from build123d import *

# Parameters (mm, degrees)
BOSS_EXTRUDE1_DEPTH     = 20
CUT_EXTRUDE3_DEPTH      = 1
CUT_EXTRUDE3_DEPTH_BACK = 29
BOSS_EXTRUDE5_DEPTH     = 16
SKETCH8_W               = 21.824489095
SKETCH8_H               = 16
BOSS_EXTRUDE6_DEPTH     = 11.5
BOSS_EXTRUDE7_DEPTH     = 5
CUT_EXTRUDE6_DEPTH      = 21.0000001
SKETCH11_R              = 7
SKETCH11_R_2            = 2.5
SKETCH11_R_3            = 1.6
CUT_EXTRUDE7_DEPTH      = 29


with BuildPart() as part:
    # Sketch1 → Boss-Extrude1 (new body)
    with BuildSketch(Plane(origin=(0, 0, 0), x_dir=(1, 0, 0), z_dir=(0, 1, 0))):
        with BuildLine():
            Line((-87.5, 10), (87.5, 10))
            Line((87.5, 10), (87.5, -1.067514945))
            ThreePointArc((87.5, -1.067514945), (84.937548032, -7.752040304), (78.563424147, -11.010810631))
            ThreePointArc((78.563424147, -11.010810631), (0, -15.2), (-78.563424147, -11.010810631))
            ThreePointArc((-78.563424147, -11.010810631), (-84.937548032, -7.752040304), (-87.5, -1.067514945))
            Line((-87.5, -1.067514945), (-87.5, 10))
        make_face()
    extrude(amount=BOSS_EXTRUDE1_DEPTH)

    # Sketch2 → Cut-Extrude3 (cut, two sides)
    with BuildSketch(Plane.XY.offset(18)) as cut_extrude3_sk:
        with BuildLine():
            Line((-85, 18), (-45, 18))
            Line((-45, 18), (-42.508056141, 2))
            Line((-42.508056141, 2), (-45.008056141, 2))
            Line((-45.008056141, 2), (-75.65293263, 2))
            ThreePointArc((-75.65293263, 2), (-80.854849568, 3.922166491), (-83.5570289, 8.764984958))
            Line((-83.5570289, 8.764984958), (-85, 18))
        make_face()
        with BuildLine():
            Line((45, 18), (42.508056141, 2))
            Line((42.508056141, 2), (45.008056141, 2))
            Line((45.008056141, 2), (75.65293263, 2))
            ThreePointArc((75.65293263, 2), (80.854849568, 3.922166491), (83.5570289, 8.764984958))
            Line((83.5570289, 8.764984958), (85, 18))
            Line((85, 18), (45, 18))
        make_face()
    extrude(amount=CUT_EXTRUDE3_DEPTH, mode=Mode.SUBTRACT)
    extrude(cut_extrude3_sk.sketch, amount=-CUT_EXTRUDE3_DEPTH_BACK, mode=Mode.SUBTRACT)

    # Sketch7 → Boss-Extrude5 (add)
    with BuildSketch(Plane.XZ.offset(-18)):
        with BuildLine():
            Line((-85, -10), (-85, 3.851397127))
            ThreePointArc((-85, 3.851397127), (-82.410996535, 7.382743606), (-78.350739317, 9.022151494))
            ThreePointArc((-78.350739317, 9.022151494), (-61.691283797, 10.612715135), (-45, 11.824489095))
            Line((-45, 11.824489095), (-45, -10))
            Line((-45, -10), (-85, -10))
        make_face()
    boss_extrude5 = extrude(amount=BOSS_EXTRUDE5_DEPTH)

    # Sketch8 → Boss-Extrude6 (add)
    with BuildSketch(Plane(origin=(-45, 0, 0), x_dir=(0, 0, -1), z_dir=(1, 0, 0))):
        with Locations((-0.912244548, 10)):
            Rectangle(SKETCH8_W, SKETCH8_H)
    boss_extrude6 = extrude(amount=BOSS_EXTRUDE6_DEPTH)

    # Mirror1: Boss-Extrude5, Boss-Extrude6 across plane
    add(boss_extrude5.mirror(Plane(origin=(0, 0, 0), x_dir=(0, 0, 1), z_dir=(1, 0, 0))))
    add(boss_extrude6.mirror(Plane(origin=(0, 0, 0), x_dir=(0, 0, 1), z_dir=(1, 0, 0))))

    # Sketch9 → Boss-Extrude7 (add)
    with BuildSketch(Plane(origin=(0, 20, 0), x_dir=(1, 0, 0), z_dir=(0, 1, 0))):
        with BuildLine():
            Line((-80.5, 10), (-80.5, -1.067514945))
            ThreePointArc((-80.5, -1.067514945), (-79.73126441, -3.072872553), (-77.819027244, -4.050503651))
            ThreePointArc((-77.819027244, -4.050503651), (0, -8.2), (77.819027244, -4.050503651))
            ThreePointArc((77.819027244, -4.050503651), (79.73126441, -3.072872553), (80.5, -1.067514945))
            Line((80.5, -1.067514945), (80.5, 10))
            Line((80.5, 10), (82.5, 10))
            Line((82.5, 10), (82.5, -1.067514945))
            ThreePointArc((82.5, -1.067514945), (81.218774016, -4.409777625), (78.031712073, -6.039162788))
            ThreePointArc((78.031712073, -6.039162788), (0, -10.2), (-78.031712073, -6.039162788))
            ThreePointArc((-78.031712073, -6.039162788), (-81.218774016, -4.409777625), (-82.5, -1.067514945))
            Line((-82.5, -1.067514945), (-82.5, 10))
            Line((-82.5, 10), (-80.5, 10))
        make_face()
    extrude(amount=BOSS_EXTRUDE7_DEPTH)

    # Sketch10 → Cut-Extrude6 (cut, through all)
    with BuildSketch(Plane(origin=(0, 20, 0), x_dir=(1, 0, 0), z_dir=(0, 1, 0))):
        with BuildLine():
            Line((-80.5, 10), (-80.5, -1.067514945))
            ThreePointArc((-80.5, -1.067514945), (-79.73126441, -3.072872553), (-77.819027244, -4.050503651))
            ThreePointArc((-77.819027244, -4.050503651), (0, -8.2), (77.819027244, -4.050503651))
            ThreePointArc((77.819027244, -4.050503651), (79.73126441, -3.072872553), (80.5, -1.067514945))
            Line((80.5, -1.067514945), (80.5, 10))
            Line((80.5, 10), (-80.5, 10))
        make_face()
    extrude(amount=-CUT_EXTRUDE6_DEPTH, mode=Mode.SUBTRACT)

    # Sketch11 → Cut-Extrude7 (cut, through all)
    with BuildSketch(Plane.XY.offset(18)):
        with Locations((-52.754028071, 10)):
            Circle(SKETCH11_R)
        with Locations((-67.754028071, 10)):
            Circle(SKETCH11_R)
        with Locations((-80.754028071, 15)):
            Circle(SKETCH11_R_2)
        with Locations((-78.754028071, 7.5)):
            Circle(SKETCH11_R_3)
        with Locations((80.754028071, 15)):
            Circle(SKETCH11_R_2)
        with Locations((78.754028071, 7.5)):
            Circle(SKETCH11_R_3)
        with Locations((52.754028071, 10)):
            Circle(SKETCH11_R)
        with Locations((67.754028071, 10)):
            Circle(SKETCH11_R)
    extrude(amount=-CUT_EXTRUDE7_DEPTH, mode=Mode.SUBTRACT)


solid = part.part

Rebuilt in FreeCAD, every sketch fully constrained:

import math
import FreeCAD as App
import Part
import Sketcher
from FreeCAD import Vector
Q = App.Units.Quantity

doc = App.newDocument("Part")
body = doc.addObject("PartDesign::Body", "Body")

# Sketch on XZ plane
sketch1 = body.newObject("Sketcher::SketchObject", "Sketch")
sketch1.AttachmentSupport = (doc.getObject("XZ_Plane"), [""])
sketch1.MapMode = "FlatFace"
sketch1.addGeometry(Part.LineSegment(Vector(88, -10, 0), Vector(-88, -10, 0)), False)
sketch1.addGeometry(Part.LineSegment(Vector(-88, -10, 0), Vector(-88, 1, 0)), False)
sketch1.addGeometry(Part.ArcOfCircle(Part.Circle(Vector(-77, 1, 0), Vector(0, 0, 1), 10), math.radians(96), math.radians(180)), False)
sketch1.addGeometry(Part.ArcOfCircle(Part.Circle(Vector(0, -724, 0), Vector(0, 0, 1), 739), math.radians(83.9), math.radians(96.1)), False)
sketch1.addGeometry(Part.ArcOfCircle(Part.Circle(Vector(77, 1, 0), Vector(0, 0, 1), 10), math.radians(0), math.radians(84)), False)
sketch1.addGeometry(Part.LineSegment(Vector(88, 1, 0), Vector(88, -10, 0)), False)
sketch1.addConstraint(Sketcher.Constraint("Coincident", 0, 2, 1, 1))
sketch1.addConstraint(Sketcher.Constraint("Tangent", 1, 2, 2, 2))
sketch1.addConstraint(Sketcher.Constraint("Tangent", 2, 1, 3, 2))
sketch1.addConstraint(Sketcher.Constraint("Tangent", 3, 1, 4, 2))
sketch1.addConstraint(Sketcher.Constraint("Tangent", 4, 1, 5, 1))
sketch1.addConstraint(Sketcher.Constraint("Coincident", 5, 2, 0, 1))
sketch1.addConstraint(Sketcher.Constraint("Horizontal", 0))
sketch1.addConstraint(Sketcher.Constraint("Vertical", 1))
sketch1.addConstraint(Sketcher.Constraint("Vertical", 5))
sketch1.addConstraint(Sketcher.Constraint("Equal", 2, 4))
sketch1.addConstraint(Sketcher.Constraint("Symmetric", 2, 3, 4, 3, -2))
sketch1.addConstraint(Sketcher.Constraint("Radius", 2, Q("10 mm")))
sketch1.addConstraint(Sketcher.Constraint("DistanceX", 0, 2, 0, 1, Q("175 mm")))
sketch1.addConstraint(Sketcher.Constraint("DistanceY", 0, 2, -1, 1, Q("10 mm")))
sketch1.addConstraint(Sketcher.Constraint("Radius", 3, Q("738.777885 mm")))
sketch1.addConstraint(Sketcher.Constraint("DistanceY", 1, 1, 1, 2, Q("11.067515 mm")))
pad1 = body.newObject("PartDesign::Pad", "Pad")
pad1.Profile = sketch1
pad1.Length = 20
pad1.Reversed = True

# Sketch on XY plane
sketch2 = body.newObject("Sketcher::SketchObject", "Sketch001")
sketch2.AttachmentSupport = (doc.getObject("XY_Plane"), [""])
sketch2.MapMode = "FlatFace"
sketch2.AttachmentOffset = App.Placement(Vector(0, 0, 18), App.Rotation())
sketch2.addGeometry(Part.LineSegment(Vector(-45, 18, 0), Vector(-85, 18, 0)), False)
sketch2.addGeometry(Part.LineSegment(Vector(-85, 18, 0), Vector(-84, 9, 0)), False)
sketch2.addGeometry(Part.ArcOfCircle(Part.Circle(Vector(-76, 10, 0), Vector(0, 0, 1), 8), math.radians(-171), math.radians(-90)), False)
sketch2.addGeometry(Part.LineSegment(Vector(-76, 2, 0), Vector(-43, 2, 0)), False)
sketch2.addGeometry(Part.LineSegment(Vector(-43, 2, 0), Vector(-45, 18, 0)), False)
sketch2.addGeometry(Part.LineSegment(Vector(45, 18, 0), Vector(43, 2, 0)), False)
sketch2.addGeometry(Part.LineSegment(Vector(43, 2, 0), Vector(76, 2, 0)), False)
sketch2.addGeometry(Part.ArcOfCircle(Part.Circle(Vector(76, 10, 0), Vector(0, 0, 1), 8), math.radians(-90), math.radians(-9)), False)
sketch2.addGeometry(Part.LineSegment(Vector(84, 9, 0), Vector(85, 18, 0)), False)
sketch2.addGeometry(Part.LineSegment(Vector(85, 18, 0), Vector(45, 18, 0)), False)
sketch2.addConstraint(Sketcher.Constraint("Coincident", 0, 2, 1, 1))
sketch2.addConstraint(Sketcher.Constraint("Tangent", 1, 2, 2, 1))
sketch2.addConstraint(Sketcher.Constraint("Tangent", 2, 2, 3, 1))
sketch2.addConstraint(Sketcher.Constraint("Coincident", 3, 2, 4, 1))
sketch2.addConstraint(Sketcher.Constraint("Coincident", 4, 2, 0, 1))
sketch2.addConstraint(Sketcher.Constraint("Coincident", 5, 2, 6, 1))
sketch2.addConstraint(Sketcher.Constraint("Tangent", 6, 2, 7, 1))
sketch2.addConstraint(Sketcher.Constraint("Tangent", 7, 2, 8, 1))
sketch2.addConstraint(Sketcher.Constraint("Coincident", 8, 2, 9, 1))
sketch2.addConstraint(Sketcher.Constraint("Coincident", 9, 2, 5, 1))
sketch2.addConstraint(Sketcher.Constraint("Horizontal", 0))
sketch2.addConstraint(Sketcher.Constraint("Horizontal", 3))
sketch2.addConstraint(Sketcher.Constraint("Horizontal", 6))
sketch2.addConstraint(Sketcher.Constraint("Horizontal", 9))
sketch2.addConstraint(Sketcher.Constraint("Equal", 2, 7))
sketch2.addConstraint(Sketcher.Constraint("Symmetric", 2, 3, 7, 3, -2))
sketch2.addConstraint(Sketcher.Constraint("Symmetric", 0, 2, 8, 2, -2))
sketch2.addConstraint(Sketcher.Constraint("Equal", 3, 6))
sketch2.addConstraint(Sketcher.Constraint("Equal", 0, 9))
sketch2.addConstraint(Sketcher.Constraint("Radius", 2, Q("8 mm")))
sketch2.addConstraint(Sketcher.Constraint("DistanceX", 0, 2, 0, 1, Q("40 mm")))
sketch2.addConstraint(Sketcher.Constraint("DistanceY", -1, 1, 2, 3, Q("10 mm")))
sketch2.addConstraint(Sketcher.Constraint("DistanceX", 0, 2, -1, 1, Q("85 mm")))
sketch2.addConstraint(Sketcher.Constraint("DistanceY", -1, 1, 0, 2, Q("18 mm")))
sketch2.addConstraint(Sketcher.Constraint("DistanceX", 3, 1, 3, 2, Q("33.144876 mm")))
sketch2.addConstraint(Sketcher.Constraint("DistanceX", 1, 2, -1, 1, Q("83.557029 mm")))
pocket1 = body.newObject("PartDesign::Pocket", "Pocket")
pocket1.Profile = sketch2
pocket1.Type = "ThroughAll"
pocket1.Midplane = True

# Sketch on XZ plane
sketch3 = body.newObject("Sketcher::SketchObject", "Sketch002")
sketch3.AttachmentSupport = (doc.getObject("XZ_Plane"), [""])
sketch3.MapMode = "FlatFace"
sketch3.AttachmentOffset = App.Placement(Vector(0, 0, -18), App.Rotation())
sketch3.addGeometry(Part.LineSegment(Vector(-85, 4, 0), Vector(-85, -10, 0)), False)
sketch3.addGeometry(Part.LineSegment(Vector(-85, -10, 0), Vector(-45, -10, 0)), False)
sketch3.addGeometry(Part.LineSegment(Vector(-45, -10, 0), Vector(-45, 12, 0)), False)
sketch3.addGeometry(Part.ArcOfCircle(Part.Circle(Vector(0, -724, 0), Vector(0, 0, 1), 737), math.radians(93.5), math.radians(96.1)), False)
sketch3.addGeometry(Part.ArcOfCircle(Part.Circle(Vector(-78, 1, 0), Vector(0, 0, 1), 8), math.radians(96), math.radians(160)), False)
sketch3.addConstraint(Sketcher.Constraint("Coincident", 0, 2, 1, 1))
sketch3.addConstraint(Sketcher.Constraint("Coincident", 1, 2, 2, 1))
sketch3.addConstraint(Sketcher.Constraint("Coincident", 2, 2, 3, 1))
sketch3.addConstraint(Sketcher.Constraint("Tangent", 3, 2, 4, 1))
sketch3.addConstraint(Sketcher.Constraint("Coincident", 4, 2, 0, 1))
sketch3.addConstraint(Sketcher.Constraint("Vertical", 0))
sketch3.addConstraint(Sketcher.Constraint("Horizontal", 1))
sketch3.addConstraint(Sketcher.Constraint("Vertical", 2))
sketch3.addConstraint(Sketcher.Constraint("PointOnObject", 3, 3, -2))
sketch3.addConstraint(Sketcher.Constraint("Radius", 4, Q("8 mm")))
sketch3.addConstraint(Sketcher.Constraint("DistanceX", 1, 1, 1, 2, Q("40 mm")))
sketch3.addConstraint(Sketcher.Constraint("DistanceX", 0, 2, -1, 1, Q("85 mm")))
sketch3.addConstraint(Sketcher.Constraint("DistanceY", 0, 2, -1, 1, Q("10 mm")))
sketch3.addConstraint(Sketcher.Constraint("DistanceX", 4, 3, -1, 1, Q("77.5 mm")))
sketch3.addConstraint(Sketcher.Constraint("Radius", 3, Q("736.777886 mm")))
sketch3.addConstraint(Sketcher.Constraint("DistanceY", 2, 1, 2, 2, Q("21.824489 mm")))
pad2 = body.newObject("PartDesign::Pad", "Pad001")
pad2.Profile = sketch3
pad2.Length = 16

# Sketch on YZ plane
sketch4 = body.newObject("Sketcher::SketchObject", "Sketch003")
sketch4.AttachmentSupport = (doc.getObject("YZ_Plane"), [""])
sketch4.MapMode = "FlatFace"
sketch4.AttachmentOffset = App.Placement(Vector(0, 0, -45), App.Rotation())
sketch4.addGeometry(Part.LineSegment(Vector(18, 12, 0), Vector(2, 12, 0)), False)
sketch4.addGeometry(Part.LineSegment(Vector(2, 12, 0), Vector(2, -10, 0)), False)
sketch4.addGeometry(Part.LineSegment(Vector(2, -10, 0), Vector(18, -10, 0)), False)
sketch4.addGeometry(Part.LineSegment(Vector(18, -10, 0), Vector(18, 12, 0)), False)
sketch4.addConstraint(Sketcher.Constraint("Coincident", 0, 2, 1, 1))
sketch4.addConstraint(Sketcher.Constraint("Coincident", 1, 2, 2, 1))
sketch4.addConstraint(Sketcher.Constraint("Coincident", 2, 2, 3, 1))
sketch4.addConstraint(Sketcher.Constraint("Coincident", 3, 2, 0, 1))
sketch4.addConstraint(Sketcher.Constraint("Horizontal", 0))
sketch4.addConstraint(Sketcher.Constraint("Vertical", 1))
sketch4.addConstraint(Sketcher.Constraint("Horizontal", 2))
sketch4.addConstraint(Sketcher.Constraint("Vertical", 3))
sketch4.addConstraint(Sketcher.Constraint("DistanceX", 0, 2, 0, 1, Q("16 mm")))
sketch4.addConstraint(Sketcher.Constraint("DistanceX", -1, 1, 0, 2, Q("2 mm")))
sketch4.addConstraint(Sketcher.Constraint("DistanceY", 1, 2, -1, 1, Q("10 mm")))
sketch4.addConstraint(Sketcher.Constraint("DistanceY", 1, 2, 1, 1, Q("21.824489 mm")))
pad3 = body.newObject("PartDesign::Pad", "Pad002")
pad3.Profile = sketch4
pad3.Length = 11.5
doc.recompute()

mirrored = body.newObject("PartDesign::Mirrored", "Mirrored")
mirrored.Originals = [pad2, pad3]
mirrored.MirrorPlane = (doc.getObject("YZ_Plane"), [""])
body.Tip = mirrored

# Sketch on XZ plane
sketch5 = body.newObject("Sketcher::SketchObject", "Sketch004")
sketch5.AttachmentSupport = (doc.getObject("XZ_Plane"), [""])
sketch5.MapMode = "FlatFace"
sketch5.AttachmentOffset = App.Placement(Vector(0, 0, -20), App.Rotation())
sketch5.addGeometry(Part.LineSegment(Vector(-80.5, 1.1, 0), Vector(-80.5, -10, 0)), False)
sketch5.addGeometry(Part.LineSegment(Vector(-80.5, -10, 0), Vector(-82.5, -10, 0)), False)
sketch5.addGeometry(Part.LineSegment(Vector(-82.5, -10, 0), Vector(-82.5, 1.1, 0)), False)
sketch5.addGeometry(Part.ArcOfCircle(Part.Circle(Vector(-77.5, 1.1, 0), Vector(0, 0, 1), 5), math.radians(96), math.radians(180)), False)
sketch5.addGeometry(Part.ArcOfCircle(Part.Circle(Vector(0, -723.6, 0), Vector(0, 0, 1), 733.8), math.radians(83.9), math.radians(96.1)), False)
sketch5.addGeometry(Part.ArcOfCircle(Part.Circle(Vector(77.5, 1.1, 0), Vector(0, 0, 1), 5), math.radians(0), math.radians(84)), False)
sketch5.addGeometry(Part.LineSegment(Vector(82.5, 1.1, 0), Vector(82.5, -10, 0)), False)
sketch5.addGeometry(Part.LineSegment(Vector(82.5, -10, 0), Vector(80.5, -10, 0)), False)
sketch5.addGeometry(Part.LineSegment(Vector(80.5, -10, 0), Vector(80.5, 1.1, 0)), False)
sketch5.addGeometry(Part.ArcOfCircle(Part.Circle(Vector(77.5, 1.1, 0), Vector(0, 0, 1), 3), math.radians(0), math.radians(84)), False)
sketch5.addGeometry(Part.ArcOfCircle(Part.Circle(Vector(0, -723.6, 0), Vector(0, 0, 1), 731.8), math.radians(83.9), math.radians(96.1)), False)
sketch5.addGeometry(Part.ArcOfCircle(Part.Circle(Vector(-77.5, 1.1, 0), Vector(0, 0, 1), 3), math.radians(96), math.radians(180)), False)
sketch5.addConstraint(Sketcher.Constraint("Coincident", 0, 2, 1, 1))
sketch5.addConstraint(Sketcher.Constraint("Coincident", 1, 2, 2, 1))
sketch5.addConstraint(Sketcher.Constraint("Tangent", 2, 2, 3, 2))
sketch5.addConstraint(Sketcher.Constraint("Tangent", 3, 1, 4, 2))
sketch5.addConstraint(Sketcher.Constraint("Tangent", 4, 1, 5, 2))
sketch5.addConstraint(Sketcher.Constraint("Tangent", 5, 1, 6, 1))
sketch5.addConstraint(Sketcher.Constraint("Coincident", 6, 2, 7, 1))
sketch5.addConstraint(Sketcher.Constraint("Coincident", 7, 2, 8, 1))
sketch5.addConstraint(Sketcher.Constraint("Tangent", 8, 2, 9, 1))
sketch5.addConstraint(Sketcher.Constraint("Tangent", 9, 2, 10, 1))
sketch5.addConstraint(Sketcher.Constraint("Tangent", 10, 2, 11, 1))
sketch5.addConstraint(Sketcher.Constraint("Tangent", 11, 2, 0, 1))
sketch5.addConstraint(Sketcher.Constraint("Vertical", 0))
sketch5.addConstraint(Sketcher.Constraint("Horizontal", 1))
sketch5.addConstraint(Sketcher.Constraint("Vertical", 2))
sketch5.addConstraint(Sketcher.Constraint("Vertical", 6))
sketch5.addConstraint(Sketcher.Constraint("Horizontal", 7))
sketch5.addConstraint(Sketcher.Constraint("Vertical", 8))
sketch5.addConstraint(Sketcher.Constraint("Coincident", 9, 3, 5, 3))
sketch5.addConstraint(Sketcher.Constraint("Coincident", 10, 3, 4, 3))
sketch5.addConstraint(Sketcher.Constraint("Coincident", 11, 3, 3, 3))
sketch5.addConstraint(Sketcher.Constraint("Equal", 3, 5))
sketch5.addConstraint(Sketcher.Constraint("Symmetric", 3, 3, 5, 3, -2))
sketch5.addConstraint(Sketcher.Constraint("Horizontal", 1, 2, 6, 2))
sketch5.addConstraint(Sketcher.Constraint("Radius", 3, Q("5 mm")))
sketch5.addConstraint(Sketcher.Constraint("Radius", 9, Q("3 mm")))
sketch5.addConstraint(Sketcher.Constraint("DistanceY", 0, 2, -1, 1, Q("10 mm")))
sketch5.addConstraint(Sketcher.Constraint("DistanceX", 3, 3, 5, 3, Q("155 mm")))
sketch5.addConstraint(Sketcher.Constraint("Radius", 4, Q("733.777885 mm")))
sketch5.addConstraint(Sketcher.Constraint("DistanceY", 0, 2, 0, 1, Q("11.067515 mm")))
pad4 = body.newObject("PartDesign::Pad", "Pad003")
pad4.Profile = sketch5
pad4.Length = 5
pad4.Reversed = True

# Sketch on XZ plane
sketch6 = body.newObject("Sketcher::SketchObject", "Sketch005")
sketch6.AttachmentSupport = (doc.getObject("XZ_Plane"), [""])
sketch6.MapMode = "FlatFace"
sketch6.AttachmentOffset = App.Placement(Vector(0, 0, -20), App.Rotation())
sketch6.addGeometry(Part.LineSegment(Vector(-80.5, -10, 0), Vector(-80.5, 1.1, 0)), False)
sketch6.addGeometry(Part.ArcOfCircle(Part.Circle(Vector(-77.5, 1.1, 0), Vector(0, 0, 1), 3), math.radians(96), math.radians(180)), False)
sketch6.addGeometry(Part.ArcOfCircle(Part.Circle(Vector(0, -723.6, 0), Vector(0, 0, 1), 731.8), math.radians(83.9), math.radians(96.1)), False)
sketch6.addGeometry(Part.ArcOfCircle(Part.Circle(Vector(77.5, 1.1, 0), Vector(0, 0, 1), 3), math.radians(0), math.radians(84)), False)
sketch6.addGeometry(Part.LineSegment(Vector(80.5, 1.1, 0), Vector(80.5, -10, 0)), False)
sketch6.addGeometry(Part.LineSegment(Vector(80.5, -10, 0), Vector(-80.5, -10, 0)), False)
sketch6.addConstraint(Sketcher.Constraint("Tangent", 0, 2, 1, 2))
sketch6.addConstraint(Sketcher.Constraint("Tangent", 1, 1, 2, 2))
sketch6.addConstraint(Sketcher.Constraint("Tangent", 2, 1, 3, 2))
sketch6.addConstraint(Sketcher.Constraint("Tangent", 3, 1, 4, 1))
sketch6.addConstraint(Sketcher.Constraint("Coincident", 4, 2, 5, 1))
sketch6.addConstraint(Sketcher.Constraint("Coincident", 5, 2, 0, 1))
sketch6.addConstraint(Sketcher.Constraint("Vertical", 0))
sketch6.addConstraint(Sketcher.Constraint("Vertical", 4))
sketch6.addConstraint(Sketcher.Constraint("Horizontal", 5))
sketch6.addConstraint(Sketcher.Constraint("Equal", 1, 3))
sketch6.addConstraint(Sketcher.Constraint("Symmetric", 1, 3, 3, 3, -2))
sketch6.addConstraint(Sketcher.Constraint("Radius", 1, Q("3 mm")))
sketch6.addConstraint(Sketcher.Constraint("DistanceX", 5, 2, 5, 1, Q("161 mm")))
sketch6.addConstraint(Sketcher.Constraint("DistanceY", 4, 2, -1, 1, Q("10 mm")))
sketch6.addConstraint(Sketcher.Constraint("Radius", 2, Q("731.777885 mm")))
sketch6.addConstraint(Sketcher.Constraint("DistanceY", 0, 1, 0, 2, Q("11.067515 mm")))
pocket2 = body.newObject("PartDesign::Pocket", "Pocket001")
pocket2.Profile = sketch6
pocket2.Type = "ThroughAll"
pocket2.Reversed = True

# Sketch on XY plane
sketch7 = body.newObject("Sketcher::SketchObject", "Sketch006")
sketch7.AttachmentSupport = (doc.getObject("XY_Plane"), [""])
sketch7.MapMode = "FlatFace"
sketch7.AttachmentOffset = App.Placement(Vector(0, 0, 18), App.Rotation())
sketch7.addGeometry(Part.Circle(Vector(-52.8, 10, 0), Vector(0, 0, 1), 7), False)
sketch7.addGeometry(Part.Circle(Vector(-67.8, 10, 0), Vector(0, 0, 1), 7), False)
sketch7.addGeometry(Part.Circle(Vector(-80.8, 15, 0), Vector(0, 0, 1), 2.5), False)
sketch7.addGeometry(Part.Circle(Vector(-78.8, 7.5, 0), Vector(0, 0, 1), 1.6), False)
sketch7.addGeometry(Part.Circle(Vector(80.8, 15, 0), Vector(0, 0, 1), 2.5), False)
sketch7.addGeometry(Part.Circle(Vector(78.8, 7.5, 0), Vector(0, 0, 1), 1.6), False)
sketch7.addGeometry(Part.Circle(Vector(52.8, 10, 0), Vector(0, 0, 1), 7), False)
sketch7.addGeometry(Part.Circle(Vector(67.8, 10, 0), Vector(0, 0, 1), 7), False)
sketch7.addConstraint(Sketcher.Constraint("Equal", 0, 1))
sketch7.addConstraint(Sketcher.Constraint("Equal", 2, 4))
sketch7.addConstraint(Sketcher.Constraint("Equal", 3, 5))
sketch7.addConstraint(Sketcher.Constraint("Equal", 1, 6))
sketch7.addConstraint(Sketcher.Constraint("Equal", 6, 7))
sketch7.addConstraint(Sketcher.Constraint("Symmetric", 2, 3, 4, 3, -2))
sketch7.addConstraint(Sketcher.Constraint("Symmetric", 3, 3, 5, 3, -2))
sketch7.addConstraint(Sketcher.Constraint("Symmetric", 0, 3, 6, 3, -2))
sketch7.addConstraint(Sketcher.Constraint("Symmetric", 1, 3, 7, 3, -2))
sketch7.addConstraint(Sketcher.Constraint("Horizontal", 0, 3, 1, 3))
sketch7.addConstraint(Sketcher.Constraint("Diameter", 0, Q("14 mm")))
sketch7.addConstraint(Sketcher.Constraint("Diameter", 2, Q("5 mm")))
sketch7.addConstraint(Sketcher.Constraint("Diameter", 3, Q("3.2 mm")))
sketch7.addConstraint(Sketcher.Constraint("DistanceY", -1, 1, 0, 3, Q("10 mm")))
sketch7.addConstraint(Sketcher.Constraint("DistanceY", -1, 1, 2, 3, Q("15 mm")))
sketch7.addConstraint(Sketcher.Constraint("DistanceX", 1, 3, 0, 3, Q("15 mm")))
sketch7.addConstraint(Sketcher.Constraint("DistanceX", 2, 3, 1, 3, Q("13 mm")))
sketch7.addConstraint(Sketcher.Constraint("DistanceX", 2, 3, 3, 3, Q("2 mm")))
sketch7.addConstraint(Sketcher.Constraint("DistanceY", -1, 1, 3, 3, Q("7.5 mm")))
sketch7.addConstraint(Sketcher.Constraint("DistanceX", 0, 3, -1, 1, Q("52.754028 mm")))
pocket3 = body.newObject("PartDesign::Pocket", "Pocket002")
pocket3.Profile = sketch7
pocket3.Type = "ThroughAll"

doc.recompute()
